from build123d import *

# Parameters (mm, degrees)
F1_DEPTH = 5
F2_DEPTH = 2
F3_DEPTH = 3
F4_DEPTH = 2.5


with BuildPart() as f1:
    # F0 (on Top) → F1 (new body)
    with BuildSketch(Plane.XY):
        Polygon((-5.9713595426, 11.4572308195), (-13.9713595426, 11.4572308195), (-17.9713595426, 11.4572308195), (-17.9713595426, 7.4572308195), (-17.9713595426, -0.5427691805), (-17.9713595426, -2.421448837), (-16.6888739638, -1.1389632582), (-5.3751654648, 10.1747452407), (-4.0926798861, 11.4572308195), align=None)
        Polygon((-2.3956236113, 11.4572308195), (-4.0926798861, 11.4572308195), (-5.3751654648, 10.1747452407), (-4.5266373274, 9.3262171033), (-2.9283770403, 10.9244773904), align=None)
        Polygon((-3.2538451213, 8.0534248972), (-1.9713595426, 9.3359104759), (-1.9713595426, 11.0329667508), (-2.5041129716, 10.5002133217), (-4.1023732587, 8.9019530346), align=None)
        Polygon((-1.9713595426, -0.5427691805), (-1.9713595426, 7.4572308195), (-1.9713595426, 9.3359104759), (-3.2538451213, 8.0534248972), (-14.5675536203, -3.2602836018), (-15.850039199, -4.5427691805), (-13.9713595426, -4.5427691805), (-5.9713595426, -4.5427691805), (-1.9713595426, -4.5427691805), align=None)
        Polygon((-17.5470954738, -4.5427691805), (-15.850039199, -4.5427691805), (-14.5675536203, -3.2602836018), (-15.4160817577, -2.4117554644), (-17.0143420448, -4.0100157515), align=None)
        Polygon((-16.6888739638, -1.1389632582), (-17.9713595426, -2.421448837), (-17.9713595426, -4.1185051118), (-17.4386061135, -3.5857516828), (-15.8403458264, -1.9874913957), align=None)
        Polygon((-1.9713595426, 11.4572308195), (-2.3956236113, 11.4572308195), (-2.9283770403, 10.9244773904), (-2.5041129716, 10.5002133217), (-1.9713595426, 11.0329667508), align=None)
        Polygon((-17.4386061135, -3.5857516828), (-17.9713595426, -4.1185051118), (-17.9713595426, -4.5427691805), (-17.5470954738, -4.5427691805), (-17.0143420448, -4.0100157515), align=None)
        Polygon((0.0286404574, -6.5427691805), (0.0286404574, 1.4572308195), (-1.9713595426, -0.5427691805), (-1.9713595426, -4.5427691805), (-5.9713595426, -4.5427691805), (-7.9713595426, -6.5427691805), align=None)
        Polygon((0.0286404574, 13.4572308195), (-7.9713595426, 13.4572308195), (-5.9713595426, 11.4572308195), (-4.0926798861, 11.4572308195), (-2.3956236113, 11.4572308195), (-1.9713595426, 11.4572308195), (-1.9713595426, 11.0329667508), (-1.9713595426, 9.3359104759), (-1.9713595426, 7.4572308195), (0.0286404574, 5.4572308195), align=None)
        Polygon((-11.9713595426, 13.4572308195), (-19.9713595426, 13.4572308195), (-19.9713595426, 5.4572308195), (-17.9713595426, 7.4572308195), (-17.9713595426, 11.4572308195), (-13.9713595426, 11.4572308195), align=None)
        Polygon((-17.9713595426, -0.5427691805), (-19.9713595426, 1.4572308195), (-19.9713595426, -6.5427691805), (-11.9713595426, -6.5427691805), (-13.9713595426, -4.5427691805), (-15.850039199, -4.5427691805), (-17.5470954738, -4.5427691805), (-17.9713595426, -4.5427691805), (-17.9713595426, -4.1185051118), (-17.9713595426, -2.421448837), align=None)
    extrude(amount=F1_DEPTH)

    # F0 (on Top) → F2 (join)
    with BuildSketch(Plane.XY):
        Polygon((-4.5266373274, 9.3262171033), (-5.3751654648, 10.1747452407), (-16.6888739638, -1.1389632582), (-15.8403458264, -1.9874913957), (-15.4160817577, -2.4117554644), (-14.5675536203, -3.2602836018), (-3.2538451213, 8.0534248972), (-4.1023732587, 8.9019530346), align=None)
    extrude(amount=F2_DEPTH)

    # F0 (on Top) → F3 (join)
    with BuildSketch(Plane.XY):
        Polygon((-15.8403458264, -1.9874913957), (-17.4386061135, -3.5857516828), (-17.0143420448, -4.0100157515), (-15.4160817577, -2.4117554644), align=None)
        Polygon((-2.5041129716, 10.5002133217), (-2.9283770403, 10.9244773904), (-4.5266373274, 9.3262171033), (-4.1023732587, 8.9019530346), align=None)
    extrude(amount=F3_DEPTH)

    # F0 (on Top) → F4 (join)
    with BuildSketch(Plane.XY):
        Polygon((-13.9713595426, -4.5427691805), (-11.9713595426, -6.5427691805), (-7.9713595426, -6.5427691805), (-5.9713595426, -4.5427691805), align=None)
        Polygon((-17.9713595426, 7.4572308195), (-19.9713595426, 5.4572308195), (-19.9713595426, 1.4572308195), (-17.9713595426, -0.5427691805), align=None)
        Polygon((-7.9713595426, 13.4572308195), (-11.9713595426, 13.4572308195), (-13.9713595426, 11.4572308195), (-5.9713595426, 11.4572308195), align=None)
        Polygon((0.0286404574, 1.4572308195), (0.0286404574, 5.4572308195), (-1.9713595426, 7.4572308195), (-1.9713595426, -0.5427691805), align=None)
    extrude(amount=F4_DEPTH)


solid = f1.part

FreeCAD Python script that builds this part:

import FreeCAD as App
import Part
import Sketcher
from FreeCAD import Vector
Q = App.Units.Quantity

doc = App.newDocument("Part")
params = doc.addObject("Spreadsheet::Sheet", "Params")
for row, (alias, value) in enumerate([
    ("sketch1_width", "8 mm"),
    ("sketch1_length", "16 mm"),
    ("sketch1_length2", "1.2 mm"),
    ("sketch1_length3", "0.6 mm"),
    ("pad1_length", "5 mm"),
    ("sketch2_length", "16 mm"),
    ("sketch2_length2", "3 mm"),
    ("sketch2_length3", "1.2 mm"),
    ("pad2_length", "2 mm"),
    ("sketch3_length", "0.6 mm"),
    ("pad3_length", "3 mm"),
    ("sketch4_width", "4 mm"),
    ("sketch4_width2", "8 mm"),
    ("pad4_length", "2.5 mm"),
], start=1):
    params.set(f"A{row}", alias)
    params.set(f"B{row}", "=" + value)
    params.setAlias(f"B{row}", alias)

body = doc.addObject("PartDesign::Body", "Body")

# Sketch on XY plane
sketch1 = body.newObject("Sketcher::SketchObject", "Sketch")
sketch1.AttachmentSupport = (doc.getObject("XY_Plane"), [""])
sketch1.MapMode = "FlatFace"
sketch1.addGeometry([
    Part.LineSegment(Vector(-18, 7.5, 0), Vector(-18, -0.5, 0)),  # 0
    Part.LineSegment(Vector(-18, -0.5, 0), Vector(-20, 1.5, 0)),  # 1
    Part.LineSegment(Vector(-20, 1.5, 0), Vector(-20, -6.5, 0)),  # 2
    Part.LineSegment(Vector(-20, -6.5, 0), Vector(-12, -6.5, 0)),  # 3
    Part.LineSegment(Vector(-12, -6.5, 0), Vector(-14, -4.5, 0)),  # 4
    Part.LineSegment(Vector(-14, -4.5, 0), Vector(-6, -4.5, 0)),  # 5
    Part.LineSegment(Vector(-6, -4.5, 0), Vector(-8, -6.5, 0)),  # 6
    Part.LineSegment(Vector(-8, -6.5, 0), Vector(0, -6.5, 0)),  # 7
    Part.LineSegment(Vector(0, -6.5, 0), Vector(0, 1.5, 0)),  # 8
    Part.LineSegment(Vector(0, 1.5, 0), Vector(-2, -0.5, 0)),  # 9
    Part.LineSegment(Vector(-2, -0.5, 0), Vector(-2, 7.5, 0)),  # 10
    Part.LineSegment(Vector(-2, 7.5, 0), Vector(0, 5.5, 0)),  # 11
    Part.LineSegment(Vector(0, 5.5, 0), Vector(0, 13.5, 0)),  # 12
    Part.LineSegment(Vector(0, 13.5, 0), Vector(-8, 13.5, 0)),  # 13
    Part.LineSegment(Vector(-8, 13.5, 0), Vector(-6, 11.5, 0)),  # 14
    Part.LineSegment(Vector(-6, 11.5, 0), Vector(-14, 11.5, 0)),  # 15
    Part.LineSegment(Vector(-14, 11.5, 0), Vector(-12, 13.5, 0)),  # 16
    Part.LineSegment(Vector(-12, 13.5, 0), Vector(-20, 13.5, 0)),  # 17
    Part.LineSegment(Vector(-20, 13.5, 0), Vector(-20, 5.5, 0)),  # 18
    Part.LineSegment(Vector(-20, 5.5, 0), Vector(-18, 7.5, 0)),  # 19
    Part.LineSegment(Vector(-17.4, -3.6, 0), Vector(-15.8, -2, 0)),  # 20
    Part.LineSegment(Vector(-15.8, -2, 0), Vector(-16.7, -1.1, 0)),  # 21
    Part.LineSegment(Vector(-16.7, -1.1, 0), Vector(-5.4, 10.2, 0)),  # 22
    Part.LineSegment(Vector(-5.4, 10.2, 0), Vector(-4.5, 9.3, 0)),  # 23
    Part.LineSegment(Vector(-4.5, 9.3, 0), Vector(-2.9, 10.9, 0)),  # 24
    Part.LineSegment(Vector(-2.9, 10.9, 0), Vector(-2.5, 10.5, 0)),  # 25
    Part.LineSegment(Vector(-2.5, 10.5, 0), Vector(-4.1, 8.9, 0)),  # 26
    Part.LineSegment(Vector(-4.1, 8.9, 0), Vector(-3.3, 8.1, 0)),  # 27
    Part.LineSegment(Vector(-3.3, 8.1, 0), Vector(-14.6, -3.3, 0)),  # 28
    Part.LineSegment(Vector(-14.6, -3.3, 0), Vector(-15.4, -2.4, 0)),  # 29
    Part.LineSegment(Vector(-15.4, -2.4, 0), Vector(-17, -4, 0)),  # 30
    Part.LineSegment(Vector(-17, -4, 0), Vector(-17.4, -3.6, 0)),  # 31
], False)
sketch1.addConstraint([
    Sketcher.Constraint("Coincident", 0, 2, 1, 1),
    Sketcher.Constraint("Coincident", 1, 2, 2, 1),
    Sketcher.Constraint("Coincident", 2, 2, 3, 1),
    Sketcher.Constraint("Coincident", 3, 2, 4, 1),
    Sketcher.Constraint("Coincident", 4, 2, 5, 1),
    Sketcher.Constraint("Coincident", 5, 2, 6, 1),
    Sketcher.Constraint("Coincident", 6, 2, 7, 1),
    Sketcher.Constraint("Coincident", 7, 2, 8, 1),
    Sketcher.Constraint("Coincident", 8, 2, 9, 1),
    Sketcher.Constraint("Coincident", 9, 2, 10, 1),
    Sketcher.Constraint("Coincident", 10, 2, 11, 1),
    Sketcher.Constraint("Coincident", 11, 2, 12, 1),
    Sketcher.Constraint("Coincident", 12, 2, 13, 1),
    Sketcher.Constraint("Coincident", 13, 2, 14, 1),
    Sketcher.Constraint("Coincident", 14, 2, 15, 1),
    Sketcher.Constraint("Coincident", 15, 2, 16, 1),
    Sketcher.Constraint("Coincident", 16, 2, 17, 1),
    Sketcher.Constraint("Coincident", 17, 2, 18, 1),
    Sketcher.Constraint("Coincident", 18, 2, 19, 1),
    Sketcher.Constraint("Coincident", 19, 2, 0, 1),
    Sketcher.Constraint("Coincident", 20, 2, 21, 1),
    Sketcher.Constraint("Coincident", 21, 2, 22, 1),
    Sketcher.Constraint("Coincident", 22, 2, 23, 1),
    Sketcher.Constraint("Coincident", 23, 2, 24, 1),
    Sketcher.Constraint("Coincident", 24, 2, 25, 1),
    Sketcher.Constraint("Coincident", 25, 2, 26, 1),
    Sketcher.Constraint("Coincident", 26, 2, 27, 1),
    Sketcher.Constraint("Coincident", 27, 2, 28, 1),
    Sketcher.Constraint("Coincident", 28, 2, 29, 1),
    Sketcher.Constraint("Coincident", 29, 2, 30, 1),
    Sketcher.Constraint("Coincident", 30, 2, 31, 1),
    Sketcher.Constraint("Coincident", 31, 2, 20, 1),
    Sketcher.Constraint("Vertical", 0),
    Sketcher.Constraint("Vertical", 2),
    Sketcher.Constraint("Horizontal", 3),
    Sketcher.Constraint("Horizontal", 5),
    Sketcher.Constraint("Horizontal", 7),
    Sketcher.Constraint("Vertical", 8),
    Sketcher.Constraint("Vertical", 10),
    Sketcher.Constraint("Vertical", 12),
    Sketcher.Constraint("Horizontal", 13),
    Sketcher.Constraint("Horizontal", 15),
    Sketcher.Constraint("Horizontal", 17),
    Sketcher.Constraint("Vertical", 18),
    Sketcher.Constraint("Parallel", 1, 4),
    Sketcher.Constraint("Perpendicular", 4, 6),
    Sketcher.Constraint("Parallel", 6, 9),
    Sketcher.Constraint("Perpendicular", 9, 11),
    Sketcher.Constraint("Parallel", 11, 14),
    Sketcher.Constraint("Perpendicular", 14, 16),
    Sketcher.Constraint("Parallel", 16, 19),
    Sketcher.Constraint("Parallel", 19, 20),
    Sketcher.Constraint("Perpendicular", 20, 21),
    Sketcher.Constraint("Perpendicular", 21, 22),
    Sketcher.Constraint("Perpendicular", 22, 23),
    Sketcher.Constraint("Perpendicular", 23, 24),
    Sketcher.Constraint("Perpendicular", 24, 25),
    Sketcher.Constraint("Perpendicular", 25, 26),
    Sketcher.Constraint("Perpendicular", 26, 27),
    Sketcher.Constraint("Perpendicular", 27, 28),
    Sketcher.Constraint("Perpendicular", 28, 29),
    Sketcher.Constraint("Perpendicular", 29, 30),
    Sketcher.Constraint("Perpendicular", 30, 31),
    Sketcher.Constraint("Horizontal", 3, 2, 6, 2),
    Sketcher.Constraint("Horizontal", 1, 2, 8, 2),
    Sketcher.Constraint("Horizontal", 0, 2, 9, 2),
    Sketcher.Constraint("Horizontal", 13, 2, 16, 2),
    Sketcher.Constraint("Horizontal", 11, 2, 18, 2),
    Sketcher.Constraint("Horizontal", 10, 2, 19, 2),
    Sketcher.Constraint("Vertical", 8, 2, 11, 2),
    Sketcher.Constraint("Vertical", 6, 2, 13, 2),
    Sketcher.Constraint("Vertical", 5, 2, 14, 2),
    Sketcher.Constraint("Vertical", 4, 2, 15, 2),
    Sketcher.Constraint("Vertical", 3, 2, 16, 2),
    Sketcher.Constraint("Equal", 3, 5),
    Sketcher.Constraint("Equal", 5, 7),
    Sketcher.Constraint("Equal", 17, 0),
    Sketcher.Constraint("Equal", 0, 2),
    Sketcher.Constraint("Equal", 10, 12),
    Sketcher.Constraint("Equal", 1, 4),
    Sketcher.Constraint("Equal", 21, 23),
    Sketcher.Constraint("Equal", 20, 24),
    Sketcher.Constraint("Equal", 24, 26),
    Sketcher.Constraint("Equal", 23, 27),
    Sketcher.Constraint("Equal", 22, 28),
    Sketcher.Constraint("Equal", 27, 29),
    Sketcher.Constraint("DistanceX", 3, 1, 3, 2, Q("8 mm")),
    Sketcher.Constraint("Distance", 22, Q("16 mm")),
    Sketcher.Constraint("DistanceX", 1, 2, 0, 2, Q("2 mm")),
    Sketcher.Constraint("Distance", 21, Q("1.2 mm")),
    Sketcher.Constraint("Distance", 25, Q("0.6 mm")),
    Sketcher.Constraint("Distance", 20, Q("2.260281 mm")),
    Sketcher.Constraint("DistanceX", 0, 2, -1, 1, Q("17.97136 mm")),
    Sketcher.Constraint("DistanceY", 0, 2, -1, 1, Q("0.542769 mm")),
    Sketcher.Constraint("DistanceY", 20, 2, -1, 1, Q("1.987491 mm")),
    Sketcher.Constraint("DistanceX", 29, 2, -1, 1, Q("15.416082 mm")),
])
sketch1.setExpression("Constraints[86]", "Params.sketch1_width")
sketch1.setExpression("Constraints[87]", "Params.sketch1_length")
sketch1.setExpression("Constraints[89]", "Params.sketch1_length2")
sketch1.setExpression("Constraints[90]", "Params.sketch1_length3")
pad1 = body.newObject("PartDesign::Pad", "Pad")
pad1.Profile = sketch1
pad1.setExpression("Length", "Params.pad1_length")

# Sketch on XY plane
sketch2 = body.newObject("Sketcher::SketchObject", "Sketch001")
sketch2.AttachmentSupport = (doc.getObject("XY_Plane"), [""])
sketch2.MapMode = "FlatFace"
sketch2.addGeometry([
    Part.LineSegment(Vector(-5.4, 10.2, 0), Vector(-16.7, -1.1, 0)),  # 0
    Part.LineSegment(Vector(-16.7, -1.1, 0), Vector(-15.8, -2, 0)),  # 1
    Part.LineSegment(Vector(-15.8, -2, 0), Vector(-14.6, -3.3, 0)),  # 2
    Part.LineSegment(Vector(-14.6, -3.3, 0), Vector(-3.3, 8.1, 0)),  # 3
    Part.LineSegment(Vector(-3.3, 8.1, 0), Vector(-5.4, 10.2, 0)),  # 4
], False)
sketch2.addConstraint([
    Sketcher.Constraint("Coincident", 0, 2, 1, 1),
    Sketcher.Constraint("Coincident", 1, 2, 2, 1),
    Sketcher.Constraint("Coincident", 2, 2, 3, 1),
    Sketcher.Constraint("Coincident", 3, 2, 4, 1),
    Sketcher.Constraint("Coincident", 4, 2, 0, 1),
    Sketcher.Constraint("Perpendicular", 0, 1),
    Sketcher.Constraint("Parallel", 1, 2),
    Sketcher.Constraint("Perpendicular", 2, 3),
    Sketcher.Constraint("Perpendicular", 3, 4),
    Sketcher.Constraint("Angle", 0, Q("-135 deg")),
    Sketcher.Constraint("Distance", 0, Q("16 mm")),
    Sketcher.Constraint("Distance", 4, Q("3 mm")),
    Sketcher.Constraint("Distance", 1, Q("1.2 mm")),
    Sketcher.Constraint("DistanceY", 1, 2, -1, 1, Q("1.987491 mm")),
    Sketcher.Constraint("DistanceX", 0, 2, -1, 1, Q("16.688874 mm")),
])
sketch2.setExpression("Constraints[10]", "Params.sketch2_length")
sketch2.setExpression("Constraints[11]", "Params.sketch2_length2")
sketch2.setExpression("Constraints[12]", "Params.sketch2_length3")
pad2 = body.newObject("PartDesign::Pad", "Pad001")
pad2.Profile = sketch2
pad2.setExpression("Length", "Params.pad2_length")

# Sketch on XY plane
sketch3 = body.newObject("Sketcher::SketchObject", "Sketch002")
sketch3.AttachmentSupport = (doc.getObject("XY_Plane"), [""])
sketch3.MapMode = "FlatFace"
sketch3.addGeometry([
    Part.LineSegment(Vector(-15.8, -2, 0), Vector(-17.4, -3.6, 0)),  # 0
    Part.LineSegment(Vector(-17.4, -3.6, 0), Vector(-17, -4, 0)),  # 1
    Part.LineSegment(Vector(-17, -4, 0), Vector(-15.4, -2.4, 0)),  # 2
    Part.LineSegment(Vector(-15.4, -2.4, 0), Vector(-15.8, -2, 0)),  # 3
    Part.LineSegment(Vector(-2.5, 10.5, 0), Vector(-2.9, 10.9, 0)),  # 4
    Part.LineSegment(Vector(-2.9, 10.9, 0), Vector(-4.5, 9.3, 0)),  # 5
    Part.LineSegment(Vector(-4.5, 9.3, 0), Vector(-4.1, 8.9, 0)),  # 6
    Part.LineSegment(Vector(-4.1, 8.9, 0), Vector(-2.5, 10.5, 0)),  # 7
], False)
sketch3.addConstraint([
    Sketcher.Constraint("Coincident", 0, 2, 1, 1),
    Sketcher.Constraint("Coincident", 1, 2, 2, 1),
    Sketcher.Constraint("Coincident", 2, 2, 3, 1),
    Sketcher.Constraint("Coincident", 3, 2, 0, 1),
    Sketcher.Constraint("Coincident", 4, 2, 5, 1),
    Sketcher.Constraint("Coincident", 5, 2, 6, 1),
    Sketcher.Constraint("Coincident", 6, 2, 7, 1),
    Sketcher.Constraint("Coincident", 7, 2, 4, 1),
    Sketcher.Constraint("Perpendicular", 0, 1),
    Sketcher.Constraint("Perpendicular", 1, 2),
    Sketcher.Constraint("Perpendicular", 2, 3),
    Sketcher.Constraint("Parallel", 3, 4),
    Sketcher.Constraint("Perpendicular", 4, 5),
    Sketcher.Constraint("Perpendicular", 5, 6),
    Sketcher.Constraint("Perpendicular", 6, 7),
    Sketcher.Constraint("Equal", 3, 4),
    Sketcher.Constraint("Equal", 2, 5),
    Sketcher.Constraint("Angle", 0, Q("-135 deg")),
    Sketcher.Constraint("Distance", 1, Q("0.6 mm")),
    Sketcher.Constraint("Distance", 0, Q("2.260281 mm")),
    Sketcher.Constraint("DistanceY", 0, 2, -1, 1, Q("3.585752 mm")),
    Sketcher.Constraint("DistanceX", 2, 2, -1, 1, Q("15.416082 mm")),
    Sketcher.Constraint("DistanceX", 3, 2, 4, 2, Q("12.911969 mm")),
    Sketcher.Constraint("DistanceY", 3, 2, 4, 2, Q("12.911969 mm")),
])
sketch3.setExpression("Constraints[18]", "Params.sketch3_length")
pad3 = body.newObject("PartDesign::Pad", "Pad002")
pad3.Profile = sketch3
pad3.setExpression("Length", "Params.pad3_length")

# Sketch on XY plane
sketch4 = body.newObject("Sketcher::SketchObject", "Sketch003")
sketch4.AttachmentSupport = (doc.getObject("XY_Plane"), [""])
sketch4.MapMode = "FlatFace"
sketch4.addGeometry([
    Part.LineSegment(Vector(-14, -4.5, 0), Vector(-12, -6.5, 0)),  # 0
    Part.LineSegment(Vector(-12, -6.5, 0), Vector(-8, -6.5, 0)),  # 1
    Part.LineSegment(Vector(-8, -6.5, 0), Vector(-6, -4.5, 0)),  # 2
    Part.LineSegment(Vector(-6, -4.5, 0), Vector(-14, -4.5, 0)),  # 3
    Part.LineSegment(Vector(-18, 7.5, 0), Vector(-20, 5.5, 0)),  # 4
    Part.LineSegment(Vector(-20, 5.5, 0), Vector(-20, 1.5, 0)),  # 5
    Part.LineSegment(Vector(-20, 1.5, 0), Vector(-18, -0.5, 0)),  # 6
    Part.LineSegment(Vector(-18, -0.5, 0), Vector(-18, 7.5, 0)),  # 7
    Part.LineSegment(Vector(-8, 13.5, 0), Vector(-12, 13.5, 0)),  # 8
    Part.LineSegment(Vector(-12, 13.5, 0), Vector(-14, 11.5, 0)),  # 9
    Part.LineSegment(Vector(-14, 11.5, 0), Vector(-6, 11.5, 0)),  # 10
    Part.LineSegment(Vector(-6, 11.5, 0), Vector(-8, 13.5, 0)),  # 11
    Part.LineSegment(Vector(0, 1.5, 0), Vector(0, 5.5, 0)),  # 12
    Part.LineSegment(Vector(0, 5.5, 0), Vector(-2, 7.5, 0)),  # 13
    Part.LineSegment(Vector(-2, 7.5, 0), Vector(-2, -0.5, 0)),  # 14
    Part.LineSegment(Vector(-2, -0.5, 0), Vector(0, 1.5, 0)),  # 15
], False)
sketch4.addConstraint([
    Sketcher.Constraint("Coincident", 0, 2, 1, 1),
    Sketcher.Constraint("Coincident", 1, 2, 2, 1),
    Sketcher.Constraint("Coincident", 2, 2, 3, 1),
    Sketcher.Constraint("Coincident", 3, 2, 0, 1),
    Sketcher.Constraint("Coincident", 4, 2, 5, 1),
    Sketcher.Constraint("Coincident", 5, 2, 6, 1),
    Sketcher.Constraint("Coincident", 6, 2, 7, 1),
    Sketcher.Constraint("Coincident", 7, 2, 4, 1),
    Sketcher.Constraint("Coincident", 8, 2, 9, 1),
    Sketcher.Constraint("Coincident", 9, 2, 10, 1),
    Sketcher.Constraint("Coincident", 10, 2, 11, 1),
    Sketcher.Constraint("Coincident", 11, 2, 8, 1),
    Sketcher.Constraint("Coincident", 12, 2, 13, 1),
    Sketcher.Constraint("Coincident", 13, 2, 14, 1),
    Sketcher.Constraint("Coincident", 14, 2, 15, 1),
    Sketcher.Constraint("Coincident", 15, 2, 12, 1),
    Sketcher.Constraint("Horizontal", 1),
    Sketcher.Constraint("Horizontal", 3),
    Sketcher.Constraint("Vertical", 5),
    Sketcher.Constraint("Vertical", 7),
    Sketcher.Constraint("Horizontal", 8),
    Sketcher.Constraint("Horizontal", 10),
    Sketcher.Constraint("Vertical", 12),
    Sketcher.Constraint("Vertical", 14),
    Sketcher.Constraint("Perpendicular", 0, 2),
    Sketcher.Constraint("Parallel", 2, 4),
    Sketcher.Constraint("Perpendicular", 4, 6),
    Sketcher.Constraint("Perpendicular", 6, 9),
    Sketcher.Constraint("Perpendicular", 9, 11),
    Sketcher.Constraint("Parallel", 11, 13),
    Sketcher.Constraint("Perpendicular", 13, 15),
    Sketcher.Constraint("Horizontal", 4, 2, 12, 2),
    Sketcher.Constraint("Horizontal", 7, 2, 13, 2),
    Sketcher.Constraint("Horizontal", 6, 2, 14, 2),
    Sketcher.Constraint("Horizontal", 5, 2, 15, 2),
    Sketcher.Constraint("Vertical", 0, 2, 8, 2),
    Sketcher.Constraint("Vertical", 3, 2, 9, 2),
    Sketcher.Constraint("Vertical", 2, 2, 10, 2),
    Sketcher.Constraint("Equal", 8, 5),
    Sketcher.Constraint("Equal", 10, 7),
    Sketcher.Constraint("DistanceX", 1, 1, 1, 2, Q("4 mm")),
    Sketcher.Constraint("DistanceX", 3, 2, 3, 1, Q("8 mm")),
    Sketcher.Constraint("DistanceX", 4, 2, 3, 2, Q("6 mm")),
    Sketcher.Constraint("DistanceY", 3, 2, 4, 2, Q("10 mm")),
    Sketcher.Constraint("DistanceY", 7, 2, 8, 2, Q("6 mm")),
    Sketcher.Constraint("DistanceX", 10, 2, 12, 2, Q("6 mm")),
    Sketcher.Constraint("DistanceX", 0, 2, -1, 1, Q("11.97136 mm")),
    Sketcher.Constraint("DistanceY", 0, 2, -1, 1, Q("6.542769 mm")),
])
sketch4.setExpression("Constraints[40]", "Params.sketch4_width")
sketch4.setExpression("Constraints[41]", "Params.sketch4_width2")
pad4 = body.newObject("PartDesign::Pad", "Pad003")
pad4.Profile = sketch4
pad4.setExpression("Length", "Params.pad4_length")

doc.recompute()
